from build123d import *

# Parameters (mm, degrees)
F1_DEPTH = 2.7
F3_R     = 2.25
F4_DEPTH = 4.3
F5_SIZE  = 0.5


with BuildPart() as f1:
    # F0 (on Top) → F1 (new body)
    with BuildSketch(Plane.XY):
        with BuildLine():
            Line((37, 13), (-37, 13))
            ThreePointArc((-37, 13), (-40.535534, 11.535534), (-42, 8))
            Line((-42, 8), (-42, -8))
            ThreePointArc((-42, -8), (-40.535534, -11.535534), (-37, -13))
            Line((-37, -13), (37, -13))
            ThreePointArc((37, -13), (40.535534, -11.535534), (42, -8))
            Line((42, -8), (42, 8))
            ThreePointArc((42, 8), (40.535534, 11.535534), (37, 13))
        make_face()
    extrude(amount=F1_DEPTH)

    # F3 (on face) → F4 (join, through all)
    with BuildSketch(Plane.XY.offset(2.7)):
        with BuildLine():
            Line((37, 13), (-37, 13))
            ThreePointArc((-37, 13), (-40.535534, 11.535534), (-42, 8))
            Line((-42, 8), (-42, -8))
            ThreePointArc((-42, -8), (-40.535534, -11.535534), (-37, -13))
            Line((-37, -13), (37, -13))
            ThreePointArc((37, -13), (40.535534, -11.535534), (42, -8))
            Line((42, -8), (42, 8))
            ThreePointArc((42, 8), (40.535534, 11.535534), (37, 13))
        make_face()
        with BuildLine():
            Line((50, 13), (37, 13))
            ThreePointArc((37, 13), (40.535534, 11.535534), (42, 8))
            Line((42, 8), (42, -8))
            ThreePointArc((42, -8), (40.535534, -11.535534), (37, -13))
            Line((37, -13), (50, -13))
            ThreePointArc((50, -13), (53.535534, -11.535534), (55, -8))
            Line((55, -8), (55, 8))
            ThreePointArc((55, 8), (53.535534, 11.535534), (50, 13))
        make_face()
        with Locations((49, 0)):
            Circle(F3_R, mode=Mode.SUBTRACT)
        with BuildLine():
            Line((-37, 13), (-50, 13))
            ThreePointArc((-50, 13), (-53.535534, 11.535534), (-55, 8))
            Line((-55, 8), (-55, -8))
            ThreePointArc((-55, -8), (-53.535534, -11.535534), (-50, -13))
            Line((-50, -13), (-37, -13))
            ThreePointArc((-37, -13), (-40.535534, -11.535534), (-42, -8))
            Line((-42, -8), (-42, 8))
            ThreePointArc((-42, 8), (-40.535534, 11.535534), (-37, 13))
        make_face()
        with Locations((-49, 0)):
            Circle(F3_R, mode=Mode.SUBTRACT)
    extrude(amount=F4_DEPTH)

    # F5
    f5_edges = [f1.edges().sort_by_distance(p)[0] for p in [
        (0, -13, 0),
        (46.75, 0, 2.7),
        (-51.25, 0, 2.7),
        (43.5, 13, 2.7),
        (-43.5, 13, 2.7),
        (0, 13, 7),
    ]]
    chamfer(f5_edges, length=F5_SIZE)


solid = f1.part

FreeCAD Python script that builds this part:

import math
import FreeCAD as App
import Part
import Sketcher
Q = App.Units.Quantity


def edges_at(feature, points):
    """Names of the edges that pass closest to the given points."""
    edges = feature.Shape.Edges
    near = lambda p: min(range(len(edges)), key=lambda i: edges[i].distToShape(Part.Vertex(*p))[0])
    return sorted({f"Edge{near(p) + 1}" for p in points})

doc = App.newDocument("Part")
body = doc.addObject("PartDesign::Body", "Body")

# Sketch on XY plane
sketch1 = body.newObject("Sketcher::SketchObject", "Sketch")
sketch1.AttachmentSupport = (doc.getObject("XY_Plane"), [""])
sketch1.MapMode = "FlatFace"
sketch1.addGeometry(Part.LineSegment(App.Vector(37, 13, 0), App.Vector(-37, 13, 0)), False)
sketch1.addGeometry(Part.ArcOfCircle(Part.Circle(App.Vector(-37, 8, 0), App.Vector(0, 0, 1), 5), math.radians(90), math.radians(180)), False)
sketch1.addGeometry(Part.LineSegment(App.Vector(-42, 8, 0), App.Vector(-42, -8, 0)), False)
sketch1.addGeometry(Part.ArcOfCircle(Part.Circle(App.Vector(-37, -8, 0), App.Vector(0, 0, 1), 5), math.radians(180), math.radians(270)), False)
sketch1.addGeometry(Part.LineSegment(App.Vector(-37, -13, 0), App.Vector(37, -13, 0)), False)
sketch1.addGeometry(Part.ArcOfCircle(Part.Circle(App.Vector(37, -8, 0), App.Vector(0, 0, 1), 5), math.radians(-90), math.radians(0)), False)
sketch1.addGeometry(Part.LineSegment(App.Vector(42, -8, 0), App.Vector(42, 8, 0)), False)
sketch1.addGeometry(Part.ArcOfCircle(Part.Circle(App.Vector(37, 8, 0), App.Vector(0, 0, 1), 5), math.radians(0), math.radians(90)), False)
sketch1.addConstraint(Sketcher.Constraint("Tangent", 0, 2, 1, 1))
sketch1.addConstraint(Sketcher.Constraint("Tangent", 1, 2, 2, 1))
sketch1.addConstraint(Sketcher.Constraint("Tangent", 2, 2, 3, 1))
sketch1.addConstraint(Sketcher.Constraint("Tangent", 3, 2, 4, 1))
sketch1.addConstraint(Sketcher.Constraint("Tangent", 4, 2, 5, 1))
sketch1.addConstraint(Sketcher.Constraint("Tangent", 5, 2, 6, 1))
sketch1.addConstraint(Sketcher.Constraint("Tangent", 6, 2, 7, 1))
sketch1.addConstraint(Sketcher.Constraint("Tangent", 7, 2, 0, 1))
sketch1.addConstraint(Sketcher.Constraint("Horizontal", 0))
sketch1.addConstraint(Sketcher.Constraint("Vertical", 2))
sketch1.addConstraint(Sketcher.Constraint("Horizontal", 4))
sketch1.addConstraint(Sketcher.Constraint("Vertical", 6))
sketch1.addConstraint(Sketcher.Constraint("Equal", 1, 3))
sketch1.addConstraint(Sketcher.Constraint("Equal", 3, 5))
sketch1.addConstraint(Sketcher.Constraint("Equal", 5, 7))
sketch1.addConstraint(Sketcher.Constraint("Symmetric", 1, 3, 5, 3, -1, 1))
sketch1.addConstraint(Sketcher.Constraint("Radius", 1, Q("5 mm")))
sketch1.addConstraint(Sketcher.Constraint("DistanceX", 0, 2, 0, 1, Q("74 mm")))
sketch1.addConstraint(Sketcher.Constraint("DistanceY", 2, 2, 2, 1, Q("16 mm")))
pad1 = body.newObject("PartDesign::Pad", "Pad")
pad1.Profile = sketch1
pad1.Length = 2.7

# Sketch on XY plane
sketch2 = body.newObject("Sketcher::SketchObject", "Sketch001")
sketch2.AttachmentSupport = (doc.getObject("XY_Plane"), [""])
sketch2.MapMode = "FlatFace"
sketch2.AttachmentOffset = App.Placement(App.Vector(0, 0, 2.7), App.Rotation())
sketch2.addGeometry(Part.LineSegment(App.Vector(50, 13, 0), App.Vector(-50, 13, 0)), False)
sketch2.addGeometry(Part.ArcOfCircle(Part.Circle(App.Vector(-50, 8, 0), App.Vector(0, 0, 1), 5), math.radians(90), math.radians(180)), False)
sketch2.addGeometry(Part.LineSegment(App.Vector(-55, 8, 0), App.Vector(-55, -8, 0)), False)
sketch2.addGeometry(Part.ArcOfCircle(Part.Circle(App.Vector(-50, -8, 0), App.Vector(0, 0, 1), 5), math.radians(180), math.radians(270)), False)
sketch2.addGeometry(Part.LineSegment(App.Vector(-50, -13, 0), App.Vector(50, -13, 0)), False)
sketch2.addGeometry(Part.ArcOfCircle(Part.Circle(App.Vector(50, -8, 0), App.Vector(0, 0, 1), 5), math.radians(-90), math.radians(0)), False)
sketch2.addGeometry(Part.LineSegment(App.Vector(55, -8, 0), App.Vector(55, 8, 0)), False)
sketch2.addGeometry(Part.ArcOfCircle(Part.Circle(App.Vector(50, 8, 0), App.Vector(0, 0, 1), 5), math.radians(0), math.radians(90)), False)
sketch2.addGeometry(Part.Circle(App.Vector(-49, 0, 0), App.Vector(0, 0, 1), 2.2), False)
sketch2.addGeometry(Part.Circle(App.Vector(49, 0, 0), App.Vector(0, 0, 1), 2.2), False)
sketch2.addConstraint(Sketcher.Constraint("Tangent", 0, 2, 1, 1))
sketch2.addConstraint(Sketcher.Constraint("Tangent", 1, 2, 2, 1))
sketch2.addConstraint(Sketcher.Constraint("Tangent", 2, 2, 3, 1))
sketch2.addConstraint(Sketcher.Constraint("Tangent", 3, 2, 4, 1))
sketch2.addConstraint(Sketcher.Constraint("Tangent", 4, 2, 5, 1))
sketch2.addConstraint(Sketcher.Constraint("Tangent", 5, 2, 6, 1))
sketch2.addConstraint(Sketcher.Constraint("Tangent", 6, 2, 7, 1))
sketch2.addConstraint(Sketcher.Constraint("Tangent", 7, 2, 0, 1))
sketch2.addConstraint(Sketcher.Constraint("Horizontal", 0))
sketch2.addConstraint(Sketcher.Constraint("Vertical", 2))
sketch2.addConstraint(Sketcher.Constraint("Horizontal", 4))
sketch2.addConstraint(Sketcher.Constraint("Vertical", 6))
sketch2.addConstraint(Sketcher.Constraint("Equal", 1, 3))
sketch2.addConstraint(Sketcher.Constraint("Equal", 3, 5))
sketch2.addConstraint(Sketcher.Constraint("Equal", 5, 7))
sketch2.addConstraint(Sketcher.Constraint("Equal", 8, 9))
sketch2.addConstraint(Sketcher.Constraint("Symmetric", 1, 3, 5, 3, -1, 1))
sketch2.addConstraint(Sketcher.Constraint("Symmetric", 8, 3, 9, 3, -1, 1))
sketch2.addConstraint(Sketcher.Constraint("PointOnObject", 8, 3, -1))
sketch2.addConstraint(Sketcher.Constraint("Radius", 1, Q("5 mm")))
sketch2.addConstraint(Sketcher.Constraint("Diameter", 8, Q("4.5 mm")))
sketch2.addConstraint(Sketcher.Constraint("DistanceX", 0, 2, 0, 1, Q("100 mm")))
sketch2.addConstraint(Sketcher.Constraint("DistanceY", 2, 2, 2, 1, Q("16 mm")))
sketch2.addConstraint(Sketcher.Constraint("DistanceX", 8, 3, -1, 1, Q("49 mm")))
pad2 = body.newObject("PartDesign::Pad", "Pad001")
pad2.Profile = sketch2
pad2.Length = 4.3
doc.recompute()

chamfer = body.newObject("PartDesign::Chamfer", "Chamfer")
chamfer.Base = (pad2, edges_at(pad2, [
    (0, -13, 0),
    (46.75, 0, 2.7),
    (-51.25, 0, 2.7),
    (43.5, 13, 2.7),
    (-43.5, 13, 2.7),
    (0, 13, 7),
]))
chamfer.Size = 0.5

doc.recompute()
